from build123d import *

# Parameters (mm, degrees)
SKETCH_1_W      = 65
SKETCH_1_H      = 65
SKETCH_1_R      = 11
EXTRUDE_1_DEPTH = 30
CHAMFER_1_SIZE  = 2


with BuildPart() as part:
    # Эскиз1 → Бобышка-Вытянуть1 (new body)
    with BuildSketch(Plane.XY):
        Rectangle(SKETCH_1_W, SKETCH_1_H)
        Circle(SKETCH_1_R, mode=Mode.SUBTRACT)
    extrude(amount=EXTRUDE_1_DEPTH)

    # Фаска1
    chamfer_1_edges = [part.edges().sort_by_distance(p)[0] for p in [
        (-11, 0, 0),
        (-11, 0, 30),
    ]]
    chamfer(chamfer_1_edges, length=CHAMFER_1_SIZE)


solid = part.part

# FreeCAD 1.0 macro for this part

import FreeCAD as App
import Part
import Sketcher
from FreeCAD import Vector


def edges_at(feature, points):
    """Names of the edges that pass closest to the given points."""
    edges = feature.Shape.Edges
    near = lambda p: min(range(len(edges)), key=lambda i: edges[i].distToShape(Part.Vertex(*p))[0])
    return sorted({f"Edge{near(p) + 1}" for p in points})

doc = App.newDocument("Part")
body = doc.addObject("PartDesign::Body", "Body")

sketch1 = body.newObject("Sketcher::SketchObject", "Sketch")
sketch1.AttachmentSupport = (doc.getObject("XY_Plane"), [""])
sketch1.MapMode = "FlatFace"
sketch1.addGeometry([
    Part.LineSegment(Vector(-32, 32, 0), Vector(-32, -32, 0)),
    Part.LineSegment(Vector(-32, -32, 0), Vector(32, -32, 0)),
    Part.LineSegment(Vector(32, -32, 0), Vector(32, 32, 0)),
    Part.LineSegment(Vector(32, 32, 0), Vector(-32, 32, 0)),
    Part.Circle(Vector(0, 0, 0), Vector(0, 0, 1), 11),
], False)
sketch1.addConstraint([
    Sketcher.Constraint("Coincident", 0, 2, 1, 1),
    Sketcher.Constraint("Coincident", 1, 2, 2, 1),
    Sketcher.Constraint("Coincident", 2, 2, 3, 1),
    Sketcher.Constraint("Coincident", 3, 2, 0, 1),
    Sketcher.Constraint("Vertical", 0),
    Sketcher.Constraint("Horizontal", 1),
    Sketcher.Constraint("Vertical", 2),
    Sketcher.Constraint("Horizontal", 3),
    Sketcher.Constraint("Coincident", 4, 3, -1, 1),
    Sketcher.Constraint("Symmetric", 0, 2, 2, 2, -1, 1),
    Sketcher.Constraint("Equal", 3, 0),
    Sketcher.Constraint("Diameter", 4, 22.0),
    Sketcher.Constraint("DistanceX", 1, 1, 1, 2, 65.0),
])
pad1 = body.newObject("PartDesign::Pad", "Pad")
pad1.Profile = sketch1
pad1.Length = 30
doc.recompute()

chamfer = body.newObject("PartDesign::Chamfer", "Chamfer")
chamfer.Base = (pad1, edges_at(pad1, [(-11, 0, 0), (-11, 0, 30)]))
chamfer.Size = 2

doc.recompute()
